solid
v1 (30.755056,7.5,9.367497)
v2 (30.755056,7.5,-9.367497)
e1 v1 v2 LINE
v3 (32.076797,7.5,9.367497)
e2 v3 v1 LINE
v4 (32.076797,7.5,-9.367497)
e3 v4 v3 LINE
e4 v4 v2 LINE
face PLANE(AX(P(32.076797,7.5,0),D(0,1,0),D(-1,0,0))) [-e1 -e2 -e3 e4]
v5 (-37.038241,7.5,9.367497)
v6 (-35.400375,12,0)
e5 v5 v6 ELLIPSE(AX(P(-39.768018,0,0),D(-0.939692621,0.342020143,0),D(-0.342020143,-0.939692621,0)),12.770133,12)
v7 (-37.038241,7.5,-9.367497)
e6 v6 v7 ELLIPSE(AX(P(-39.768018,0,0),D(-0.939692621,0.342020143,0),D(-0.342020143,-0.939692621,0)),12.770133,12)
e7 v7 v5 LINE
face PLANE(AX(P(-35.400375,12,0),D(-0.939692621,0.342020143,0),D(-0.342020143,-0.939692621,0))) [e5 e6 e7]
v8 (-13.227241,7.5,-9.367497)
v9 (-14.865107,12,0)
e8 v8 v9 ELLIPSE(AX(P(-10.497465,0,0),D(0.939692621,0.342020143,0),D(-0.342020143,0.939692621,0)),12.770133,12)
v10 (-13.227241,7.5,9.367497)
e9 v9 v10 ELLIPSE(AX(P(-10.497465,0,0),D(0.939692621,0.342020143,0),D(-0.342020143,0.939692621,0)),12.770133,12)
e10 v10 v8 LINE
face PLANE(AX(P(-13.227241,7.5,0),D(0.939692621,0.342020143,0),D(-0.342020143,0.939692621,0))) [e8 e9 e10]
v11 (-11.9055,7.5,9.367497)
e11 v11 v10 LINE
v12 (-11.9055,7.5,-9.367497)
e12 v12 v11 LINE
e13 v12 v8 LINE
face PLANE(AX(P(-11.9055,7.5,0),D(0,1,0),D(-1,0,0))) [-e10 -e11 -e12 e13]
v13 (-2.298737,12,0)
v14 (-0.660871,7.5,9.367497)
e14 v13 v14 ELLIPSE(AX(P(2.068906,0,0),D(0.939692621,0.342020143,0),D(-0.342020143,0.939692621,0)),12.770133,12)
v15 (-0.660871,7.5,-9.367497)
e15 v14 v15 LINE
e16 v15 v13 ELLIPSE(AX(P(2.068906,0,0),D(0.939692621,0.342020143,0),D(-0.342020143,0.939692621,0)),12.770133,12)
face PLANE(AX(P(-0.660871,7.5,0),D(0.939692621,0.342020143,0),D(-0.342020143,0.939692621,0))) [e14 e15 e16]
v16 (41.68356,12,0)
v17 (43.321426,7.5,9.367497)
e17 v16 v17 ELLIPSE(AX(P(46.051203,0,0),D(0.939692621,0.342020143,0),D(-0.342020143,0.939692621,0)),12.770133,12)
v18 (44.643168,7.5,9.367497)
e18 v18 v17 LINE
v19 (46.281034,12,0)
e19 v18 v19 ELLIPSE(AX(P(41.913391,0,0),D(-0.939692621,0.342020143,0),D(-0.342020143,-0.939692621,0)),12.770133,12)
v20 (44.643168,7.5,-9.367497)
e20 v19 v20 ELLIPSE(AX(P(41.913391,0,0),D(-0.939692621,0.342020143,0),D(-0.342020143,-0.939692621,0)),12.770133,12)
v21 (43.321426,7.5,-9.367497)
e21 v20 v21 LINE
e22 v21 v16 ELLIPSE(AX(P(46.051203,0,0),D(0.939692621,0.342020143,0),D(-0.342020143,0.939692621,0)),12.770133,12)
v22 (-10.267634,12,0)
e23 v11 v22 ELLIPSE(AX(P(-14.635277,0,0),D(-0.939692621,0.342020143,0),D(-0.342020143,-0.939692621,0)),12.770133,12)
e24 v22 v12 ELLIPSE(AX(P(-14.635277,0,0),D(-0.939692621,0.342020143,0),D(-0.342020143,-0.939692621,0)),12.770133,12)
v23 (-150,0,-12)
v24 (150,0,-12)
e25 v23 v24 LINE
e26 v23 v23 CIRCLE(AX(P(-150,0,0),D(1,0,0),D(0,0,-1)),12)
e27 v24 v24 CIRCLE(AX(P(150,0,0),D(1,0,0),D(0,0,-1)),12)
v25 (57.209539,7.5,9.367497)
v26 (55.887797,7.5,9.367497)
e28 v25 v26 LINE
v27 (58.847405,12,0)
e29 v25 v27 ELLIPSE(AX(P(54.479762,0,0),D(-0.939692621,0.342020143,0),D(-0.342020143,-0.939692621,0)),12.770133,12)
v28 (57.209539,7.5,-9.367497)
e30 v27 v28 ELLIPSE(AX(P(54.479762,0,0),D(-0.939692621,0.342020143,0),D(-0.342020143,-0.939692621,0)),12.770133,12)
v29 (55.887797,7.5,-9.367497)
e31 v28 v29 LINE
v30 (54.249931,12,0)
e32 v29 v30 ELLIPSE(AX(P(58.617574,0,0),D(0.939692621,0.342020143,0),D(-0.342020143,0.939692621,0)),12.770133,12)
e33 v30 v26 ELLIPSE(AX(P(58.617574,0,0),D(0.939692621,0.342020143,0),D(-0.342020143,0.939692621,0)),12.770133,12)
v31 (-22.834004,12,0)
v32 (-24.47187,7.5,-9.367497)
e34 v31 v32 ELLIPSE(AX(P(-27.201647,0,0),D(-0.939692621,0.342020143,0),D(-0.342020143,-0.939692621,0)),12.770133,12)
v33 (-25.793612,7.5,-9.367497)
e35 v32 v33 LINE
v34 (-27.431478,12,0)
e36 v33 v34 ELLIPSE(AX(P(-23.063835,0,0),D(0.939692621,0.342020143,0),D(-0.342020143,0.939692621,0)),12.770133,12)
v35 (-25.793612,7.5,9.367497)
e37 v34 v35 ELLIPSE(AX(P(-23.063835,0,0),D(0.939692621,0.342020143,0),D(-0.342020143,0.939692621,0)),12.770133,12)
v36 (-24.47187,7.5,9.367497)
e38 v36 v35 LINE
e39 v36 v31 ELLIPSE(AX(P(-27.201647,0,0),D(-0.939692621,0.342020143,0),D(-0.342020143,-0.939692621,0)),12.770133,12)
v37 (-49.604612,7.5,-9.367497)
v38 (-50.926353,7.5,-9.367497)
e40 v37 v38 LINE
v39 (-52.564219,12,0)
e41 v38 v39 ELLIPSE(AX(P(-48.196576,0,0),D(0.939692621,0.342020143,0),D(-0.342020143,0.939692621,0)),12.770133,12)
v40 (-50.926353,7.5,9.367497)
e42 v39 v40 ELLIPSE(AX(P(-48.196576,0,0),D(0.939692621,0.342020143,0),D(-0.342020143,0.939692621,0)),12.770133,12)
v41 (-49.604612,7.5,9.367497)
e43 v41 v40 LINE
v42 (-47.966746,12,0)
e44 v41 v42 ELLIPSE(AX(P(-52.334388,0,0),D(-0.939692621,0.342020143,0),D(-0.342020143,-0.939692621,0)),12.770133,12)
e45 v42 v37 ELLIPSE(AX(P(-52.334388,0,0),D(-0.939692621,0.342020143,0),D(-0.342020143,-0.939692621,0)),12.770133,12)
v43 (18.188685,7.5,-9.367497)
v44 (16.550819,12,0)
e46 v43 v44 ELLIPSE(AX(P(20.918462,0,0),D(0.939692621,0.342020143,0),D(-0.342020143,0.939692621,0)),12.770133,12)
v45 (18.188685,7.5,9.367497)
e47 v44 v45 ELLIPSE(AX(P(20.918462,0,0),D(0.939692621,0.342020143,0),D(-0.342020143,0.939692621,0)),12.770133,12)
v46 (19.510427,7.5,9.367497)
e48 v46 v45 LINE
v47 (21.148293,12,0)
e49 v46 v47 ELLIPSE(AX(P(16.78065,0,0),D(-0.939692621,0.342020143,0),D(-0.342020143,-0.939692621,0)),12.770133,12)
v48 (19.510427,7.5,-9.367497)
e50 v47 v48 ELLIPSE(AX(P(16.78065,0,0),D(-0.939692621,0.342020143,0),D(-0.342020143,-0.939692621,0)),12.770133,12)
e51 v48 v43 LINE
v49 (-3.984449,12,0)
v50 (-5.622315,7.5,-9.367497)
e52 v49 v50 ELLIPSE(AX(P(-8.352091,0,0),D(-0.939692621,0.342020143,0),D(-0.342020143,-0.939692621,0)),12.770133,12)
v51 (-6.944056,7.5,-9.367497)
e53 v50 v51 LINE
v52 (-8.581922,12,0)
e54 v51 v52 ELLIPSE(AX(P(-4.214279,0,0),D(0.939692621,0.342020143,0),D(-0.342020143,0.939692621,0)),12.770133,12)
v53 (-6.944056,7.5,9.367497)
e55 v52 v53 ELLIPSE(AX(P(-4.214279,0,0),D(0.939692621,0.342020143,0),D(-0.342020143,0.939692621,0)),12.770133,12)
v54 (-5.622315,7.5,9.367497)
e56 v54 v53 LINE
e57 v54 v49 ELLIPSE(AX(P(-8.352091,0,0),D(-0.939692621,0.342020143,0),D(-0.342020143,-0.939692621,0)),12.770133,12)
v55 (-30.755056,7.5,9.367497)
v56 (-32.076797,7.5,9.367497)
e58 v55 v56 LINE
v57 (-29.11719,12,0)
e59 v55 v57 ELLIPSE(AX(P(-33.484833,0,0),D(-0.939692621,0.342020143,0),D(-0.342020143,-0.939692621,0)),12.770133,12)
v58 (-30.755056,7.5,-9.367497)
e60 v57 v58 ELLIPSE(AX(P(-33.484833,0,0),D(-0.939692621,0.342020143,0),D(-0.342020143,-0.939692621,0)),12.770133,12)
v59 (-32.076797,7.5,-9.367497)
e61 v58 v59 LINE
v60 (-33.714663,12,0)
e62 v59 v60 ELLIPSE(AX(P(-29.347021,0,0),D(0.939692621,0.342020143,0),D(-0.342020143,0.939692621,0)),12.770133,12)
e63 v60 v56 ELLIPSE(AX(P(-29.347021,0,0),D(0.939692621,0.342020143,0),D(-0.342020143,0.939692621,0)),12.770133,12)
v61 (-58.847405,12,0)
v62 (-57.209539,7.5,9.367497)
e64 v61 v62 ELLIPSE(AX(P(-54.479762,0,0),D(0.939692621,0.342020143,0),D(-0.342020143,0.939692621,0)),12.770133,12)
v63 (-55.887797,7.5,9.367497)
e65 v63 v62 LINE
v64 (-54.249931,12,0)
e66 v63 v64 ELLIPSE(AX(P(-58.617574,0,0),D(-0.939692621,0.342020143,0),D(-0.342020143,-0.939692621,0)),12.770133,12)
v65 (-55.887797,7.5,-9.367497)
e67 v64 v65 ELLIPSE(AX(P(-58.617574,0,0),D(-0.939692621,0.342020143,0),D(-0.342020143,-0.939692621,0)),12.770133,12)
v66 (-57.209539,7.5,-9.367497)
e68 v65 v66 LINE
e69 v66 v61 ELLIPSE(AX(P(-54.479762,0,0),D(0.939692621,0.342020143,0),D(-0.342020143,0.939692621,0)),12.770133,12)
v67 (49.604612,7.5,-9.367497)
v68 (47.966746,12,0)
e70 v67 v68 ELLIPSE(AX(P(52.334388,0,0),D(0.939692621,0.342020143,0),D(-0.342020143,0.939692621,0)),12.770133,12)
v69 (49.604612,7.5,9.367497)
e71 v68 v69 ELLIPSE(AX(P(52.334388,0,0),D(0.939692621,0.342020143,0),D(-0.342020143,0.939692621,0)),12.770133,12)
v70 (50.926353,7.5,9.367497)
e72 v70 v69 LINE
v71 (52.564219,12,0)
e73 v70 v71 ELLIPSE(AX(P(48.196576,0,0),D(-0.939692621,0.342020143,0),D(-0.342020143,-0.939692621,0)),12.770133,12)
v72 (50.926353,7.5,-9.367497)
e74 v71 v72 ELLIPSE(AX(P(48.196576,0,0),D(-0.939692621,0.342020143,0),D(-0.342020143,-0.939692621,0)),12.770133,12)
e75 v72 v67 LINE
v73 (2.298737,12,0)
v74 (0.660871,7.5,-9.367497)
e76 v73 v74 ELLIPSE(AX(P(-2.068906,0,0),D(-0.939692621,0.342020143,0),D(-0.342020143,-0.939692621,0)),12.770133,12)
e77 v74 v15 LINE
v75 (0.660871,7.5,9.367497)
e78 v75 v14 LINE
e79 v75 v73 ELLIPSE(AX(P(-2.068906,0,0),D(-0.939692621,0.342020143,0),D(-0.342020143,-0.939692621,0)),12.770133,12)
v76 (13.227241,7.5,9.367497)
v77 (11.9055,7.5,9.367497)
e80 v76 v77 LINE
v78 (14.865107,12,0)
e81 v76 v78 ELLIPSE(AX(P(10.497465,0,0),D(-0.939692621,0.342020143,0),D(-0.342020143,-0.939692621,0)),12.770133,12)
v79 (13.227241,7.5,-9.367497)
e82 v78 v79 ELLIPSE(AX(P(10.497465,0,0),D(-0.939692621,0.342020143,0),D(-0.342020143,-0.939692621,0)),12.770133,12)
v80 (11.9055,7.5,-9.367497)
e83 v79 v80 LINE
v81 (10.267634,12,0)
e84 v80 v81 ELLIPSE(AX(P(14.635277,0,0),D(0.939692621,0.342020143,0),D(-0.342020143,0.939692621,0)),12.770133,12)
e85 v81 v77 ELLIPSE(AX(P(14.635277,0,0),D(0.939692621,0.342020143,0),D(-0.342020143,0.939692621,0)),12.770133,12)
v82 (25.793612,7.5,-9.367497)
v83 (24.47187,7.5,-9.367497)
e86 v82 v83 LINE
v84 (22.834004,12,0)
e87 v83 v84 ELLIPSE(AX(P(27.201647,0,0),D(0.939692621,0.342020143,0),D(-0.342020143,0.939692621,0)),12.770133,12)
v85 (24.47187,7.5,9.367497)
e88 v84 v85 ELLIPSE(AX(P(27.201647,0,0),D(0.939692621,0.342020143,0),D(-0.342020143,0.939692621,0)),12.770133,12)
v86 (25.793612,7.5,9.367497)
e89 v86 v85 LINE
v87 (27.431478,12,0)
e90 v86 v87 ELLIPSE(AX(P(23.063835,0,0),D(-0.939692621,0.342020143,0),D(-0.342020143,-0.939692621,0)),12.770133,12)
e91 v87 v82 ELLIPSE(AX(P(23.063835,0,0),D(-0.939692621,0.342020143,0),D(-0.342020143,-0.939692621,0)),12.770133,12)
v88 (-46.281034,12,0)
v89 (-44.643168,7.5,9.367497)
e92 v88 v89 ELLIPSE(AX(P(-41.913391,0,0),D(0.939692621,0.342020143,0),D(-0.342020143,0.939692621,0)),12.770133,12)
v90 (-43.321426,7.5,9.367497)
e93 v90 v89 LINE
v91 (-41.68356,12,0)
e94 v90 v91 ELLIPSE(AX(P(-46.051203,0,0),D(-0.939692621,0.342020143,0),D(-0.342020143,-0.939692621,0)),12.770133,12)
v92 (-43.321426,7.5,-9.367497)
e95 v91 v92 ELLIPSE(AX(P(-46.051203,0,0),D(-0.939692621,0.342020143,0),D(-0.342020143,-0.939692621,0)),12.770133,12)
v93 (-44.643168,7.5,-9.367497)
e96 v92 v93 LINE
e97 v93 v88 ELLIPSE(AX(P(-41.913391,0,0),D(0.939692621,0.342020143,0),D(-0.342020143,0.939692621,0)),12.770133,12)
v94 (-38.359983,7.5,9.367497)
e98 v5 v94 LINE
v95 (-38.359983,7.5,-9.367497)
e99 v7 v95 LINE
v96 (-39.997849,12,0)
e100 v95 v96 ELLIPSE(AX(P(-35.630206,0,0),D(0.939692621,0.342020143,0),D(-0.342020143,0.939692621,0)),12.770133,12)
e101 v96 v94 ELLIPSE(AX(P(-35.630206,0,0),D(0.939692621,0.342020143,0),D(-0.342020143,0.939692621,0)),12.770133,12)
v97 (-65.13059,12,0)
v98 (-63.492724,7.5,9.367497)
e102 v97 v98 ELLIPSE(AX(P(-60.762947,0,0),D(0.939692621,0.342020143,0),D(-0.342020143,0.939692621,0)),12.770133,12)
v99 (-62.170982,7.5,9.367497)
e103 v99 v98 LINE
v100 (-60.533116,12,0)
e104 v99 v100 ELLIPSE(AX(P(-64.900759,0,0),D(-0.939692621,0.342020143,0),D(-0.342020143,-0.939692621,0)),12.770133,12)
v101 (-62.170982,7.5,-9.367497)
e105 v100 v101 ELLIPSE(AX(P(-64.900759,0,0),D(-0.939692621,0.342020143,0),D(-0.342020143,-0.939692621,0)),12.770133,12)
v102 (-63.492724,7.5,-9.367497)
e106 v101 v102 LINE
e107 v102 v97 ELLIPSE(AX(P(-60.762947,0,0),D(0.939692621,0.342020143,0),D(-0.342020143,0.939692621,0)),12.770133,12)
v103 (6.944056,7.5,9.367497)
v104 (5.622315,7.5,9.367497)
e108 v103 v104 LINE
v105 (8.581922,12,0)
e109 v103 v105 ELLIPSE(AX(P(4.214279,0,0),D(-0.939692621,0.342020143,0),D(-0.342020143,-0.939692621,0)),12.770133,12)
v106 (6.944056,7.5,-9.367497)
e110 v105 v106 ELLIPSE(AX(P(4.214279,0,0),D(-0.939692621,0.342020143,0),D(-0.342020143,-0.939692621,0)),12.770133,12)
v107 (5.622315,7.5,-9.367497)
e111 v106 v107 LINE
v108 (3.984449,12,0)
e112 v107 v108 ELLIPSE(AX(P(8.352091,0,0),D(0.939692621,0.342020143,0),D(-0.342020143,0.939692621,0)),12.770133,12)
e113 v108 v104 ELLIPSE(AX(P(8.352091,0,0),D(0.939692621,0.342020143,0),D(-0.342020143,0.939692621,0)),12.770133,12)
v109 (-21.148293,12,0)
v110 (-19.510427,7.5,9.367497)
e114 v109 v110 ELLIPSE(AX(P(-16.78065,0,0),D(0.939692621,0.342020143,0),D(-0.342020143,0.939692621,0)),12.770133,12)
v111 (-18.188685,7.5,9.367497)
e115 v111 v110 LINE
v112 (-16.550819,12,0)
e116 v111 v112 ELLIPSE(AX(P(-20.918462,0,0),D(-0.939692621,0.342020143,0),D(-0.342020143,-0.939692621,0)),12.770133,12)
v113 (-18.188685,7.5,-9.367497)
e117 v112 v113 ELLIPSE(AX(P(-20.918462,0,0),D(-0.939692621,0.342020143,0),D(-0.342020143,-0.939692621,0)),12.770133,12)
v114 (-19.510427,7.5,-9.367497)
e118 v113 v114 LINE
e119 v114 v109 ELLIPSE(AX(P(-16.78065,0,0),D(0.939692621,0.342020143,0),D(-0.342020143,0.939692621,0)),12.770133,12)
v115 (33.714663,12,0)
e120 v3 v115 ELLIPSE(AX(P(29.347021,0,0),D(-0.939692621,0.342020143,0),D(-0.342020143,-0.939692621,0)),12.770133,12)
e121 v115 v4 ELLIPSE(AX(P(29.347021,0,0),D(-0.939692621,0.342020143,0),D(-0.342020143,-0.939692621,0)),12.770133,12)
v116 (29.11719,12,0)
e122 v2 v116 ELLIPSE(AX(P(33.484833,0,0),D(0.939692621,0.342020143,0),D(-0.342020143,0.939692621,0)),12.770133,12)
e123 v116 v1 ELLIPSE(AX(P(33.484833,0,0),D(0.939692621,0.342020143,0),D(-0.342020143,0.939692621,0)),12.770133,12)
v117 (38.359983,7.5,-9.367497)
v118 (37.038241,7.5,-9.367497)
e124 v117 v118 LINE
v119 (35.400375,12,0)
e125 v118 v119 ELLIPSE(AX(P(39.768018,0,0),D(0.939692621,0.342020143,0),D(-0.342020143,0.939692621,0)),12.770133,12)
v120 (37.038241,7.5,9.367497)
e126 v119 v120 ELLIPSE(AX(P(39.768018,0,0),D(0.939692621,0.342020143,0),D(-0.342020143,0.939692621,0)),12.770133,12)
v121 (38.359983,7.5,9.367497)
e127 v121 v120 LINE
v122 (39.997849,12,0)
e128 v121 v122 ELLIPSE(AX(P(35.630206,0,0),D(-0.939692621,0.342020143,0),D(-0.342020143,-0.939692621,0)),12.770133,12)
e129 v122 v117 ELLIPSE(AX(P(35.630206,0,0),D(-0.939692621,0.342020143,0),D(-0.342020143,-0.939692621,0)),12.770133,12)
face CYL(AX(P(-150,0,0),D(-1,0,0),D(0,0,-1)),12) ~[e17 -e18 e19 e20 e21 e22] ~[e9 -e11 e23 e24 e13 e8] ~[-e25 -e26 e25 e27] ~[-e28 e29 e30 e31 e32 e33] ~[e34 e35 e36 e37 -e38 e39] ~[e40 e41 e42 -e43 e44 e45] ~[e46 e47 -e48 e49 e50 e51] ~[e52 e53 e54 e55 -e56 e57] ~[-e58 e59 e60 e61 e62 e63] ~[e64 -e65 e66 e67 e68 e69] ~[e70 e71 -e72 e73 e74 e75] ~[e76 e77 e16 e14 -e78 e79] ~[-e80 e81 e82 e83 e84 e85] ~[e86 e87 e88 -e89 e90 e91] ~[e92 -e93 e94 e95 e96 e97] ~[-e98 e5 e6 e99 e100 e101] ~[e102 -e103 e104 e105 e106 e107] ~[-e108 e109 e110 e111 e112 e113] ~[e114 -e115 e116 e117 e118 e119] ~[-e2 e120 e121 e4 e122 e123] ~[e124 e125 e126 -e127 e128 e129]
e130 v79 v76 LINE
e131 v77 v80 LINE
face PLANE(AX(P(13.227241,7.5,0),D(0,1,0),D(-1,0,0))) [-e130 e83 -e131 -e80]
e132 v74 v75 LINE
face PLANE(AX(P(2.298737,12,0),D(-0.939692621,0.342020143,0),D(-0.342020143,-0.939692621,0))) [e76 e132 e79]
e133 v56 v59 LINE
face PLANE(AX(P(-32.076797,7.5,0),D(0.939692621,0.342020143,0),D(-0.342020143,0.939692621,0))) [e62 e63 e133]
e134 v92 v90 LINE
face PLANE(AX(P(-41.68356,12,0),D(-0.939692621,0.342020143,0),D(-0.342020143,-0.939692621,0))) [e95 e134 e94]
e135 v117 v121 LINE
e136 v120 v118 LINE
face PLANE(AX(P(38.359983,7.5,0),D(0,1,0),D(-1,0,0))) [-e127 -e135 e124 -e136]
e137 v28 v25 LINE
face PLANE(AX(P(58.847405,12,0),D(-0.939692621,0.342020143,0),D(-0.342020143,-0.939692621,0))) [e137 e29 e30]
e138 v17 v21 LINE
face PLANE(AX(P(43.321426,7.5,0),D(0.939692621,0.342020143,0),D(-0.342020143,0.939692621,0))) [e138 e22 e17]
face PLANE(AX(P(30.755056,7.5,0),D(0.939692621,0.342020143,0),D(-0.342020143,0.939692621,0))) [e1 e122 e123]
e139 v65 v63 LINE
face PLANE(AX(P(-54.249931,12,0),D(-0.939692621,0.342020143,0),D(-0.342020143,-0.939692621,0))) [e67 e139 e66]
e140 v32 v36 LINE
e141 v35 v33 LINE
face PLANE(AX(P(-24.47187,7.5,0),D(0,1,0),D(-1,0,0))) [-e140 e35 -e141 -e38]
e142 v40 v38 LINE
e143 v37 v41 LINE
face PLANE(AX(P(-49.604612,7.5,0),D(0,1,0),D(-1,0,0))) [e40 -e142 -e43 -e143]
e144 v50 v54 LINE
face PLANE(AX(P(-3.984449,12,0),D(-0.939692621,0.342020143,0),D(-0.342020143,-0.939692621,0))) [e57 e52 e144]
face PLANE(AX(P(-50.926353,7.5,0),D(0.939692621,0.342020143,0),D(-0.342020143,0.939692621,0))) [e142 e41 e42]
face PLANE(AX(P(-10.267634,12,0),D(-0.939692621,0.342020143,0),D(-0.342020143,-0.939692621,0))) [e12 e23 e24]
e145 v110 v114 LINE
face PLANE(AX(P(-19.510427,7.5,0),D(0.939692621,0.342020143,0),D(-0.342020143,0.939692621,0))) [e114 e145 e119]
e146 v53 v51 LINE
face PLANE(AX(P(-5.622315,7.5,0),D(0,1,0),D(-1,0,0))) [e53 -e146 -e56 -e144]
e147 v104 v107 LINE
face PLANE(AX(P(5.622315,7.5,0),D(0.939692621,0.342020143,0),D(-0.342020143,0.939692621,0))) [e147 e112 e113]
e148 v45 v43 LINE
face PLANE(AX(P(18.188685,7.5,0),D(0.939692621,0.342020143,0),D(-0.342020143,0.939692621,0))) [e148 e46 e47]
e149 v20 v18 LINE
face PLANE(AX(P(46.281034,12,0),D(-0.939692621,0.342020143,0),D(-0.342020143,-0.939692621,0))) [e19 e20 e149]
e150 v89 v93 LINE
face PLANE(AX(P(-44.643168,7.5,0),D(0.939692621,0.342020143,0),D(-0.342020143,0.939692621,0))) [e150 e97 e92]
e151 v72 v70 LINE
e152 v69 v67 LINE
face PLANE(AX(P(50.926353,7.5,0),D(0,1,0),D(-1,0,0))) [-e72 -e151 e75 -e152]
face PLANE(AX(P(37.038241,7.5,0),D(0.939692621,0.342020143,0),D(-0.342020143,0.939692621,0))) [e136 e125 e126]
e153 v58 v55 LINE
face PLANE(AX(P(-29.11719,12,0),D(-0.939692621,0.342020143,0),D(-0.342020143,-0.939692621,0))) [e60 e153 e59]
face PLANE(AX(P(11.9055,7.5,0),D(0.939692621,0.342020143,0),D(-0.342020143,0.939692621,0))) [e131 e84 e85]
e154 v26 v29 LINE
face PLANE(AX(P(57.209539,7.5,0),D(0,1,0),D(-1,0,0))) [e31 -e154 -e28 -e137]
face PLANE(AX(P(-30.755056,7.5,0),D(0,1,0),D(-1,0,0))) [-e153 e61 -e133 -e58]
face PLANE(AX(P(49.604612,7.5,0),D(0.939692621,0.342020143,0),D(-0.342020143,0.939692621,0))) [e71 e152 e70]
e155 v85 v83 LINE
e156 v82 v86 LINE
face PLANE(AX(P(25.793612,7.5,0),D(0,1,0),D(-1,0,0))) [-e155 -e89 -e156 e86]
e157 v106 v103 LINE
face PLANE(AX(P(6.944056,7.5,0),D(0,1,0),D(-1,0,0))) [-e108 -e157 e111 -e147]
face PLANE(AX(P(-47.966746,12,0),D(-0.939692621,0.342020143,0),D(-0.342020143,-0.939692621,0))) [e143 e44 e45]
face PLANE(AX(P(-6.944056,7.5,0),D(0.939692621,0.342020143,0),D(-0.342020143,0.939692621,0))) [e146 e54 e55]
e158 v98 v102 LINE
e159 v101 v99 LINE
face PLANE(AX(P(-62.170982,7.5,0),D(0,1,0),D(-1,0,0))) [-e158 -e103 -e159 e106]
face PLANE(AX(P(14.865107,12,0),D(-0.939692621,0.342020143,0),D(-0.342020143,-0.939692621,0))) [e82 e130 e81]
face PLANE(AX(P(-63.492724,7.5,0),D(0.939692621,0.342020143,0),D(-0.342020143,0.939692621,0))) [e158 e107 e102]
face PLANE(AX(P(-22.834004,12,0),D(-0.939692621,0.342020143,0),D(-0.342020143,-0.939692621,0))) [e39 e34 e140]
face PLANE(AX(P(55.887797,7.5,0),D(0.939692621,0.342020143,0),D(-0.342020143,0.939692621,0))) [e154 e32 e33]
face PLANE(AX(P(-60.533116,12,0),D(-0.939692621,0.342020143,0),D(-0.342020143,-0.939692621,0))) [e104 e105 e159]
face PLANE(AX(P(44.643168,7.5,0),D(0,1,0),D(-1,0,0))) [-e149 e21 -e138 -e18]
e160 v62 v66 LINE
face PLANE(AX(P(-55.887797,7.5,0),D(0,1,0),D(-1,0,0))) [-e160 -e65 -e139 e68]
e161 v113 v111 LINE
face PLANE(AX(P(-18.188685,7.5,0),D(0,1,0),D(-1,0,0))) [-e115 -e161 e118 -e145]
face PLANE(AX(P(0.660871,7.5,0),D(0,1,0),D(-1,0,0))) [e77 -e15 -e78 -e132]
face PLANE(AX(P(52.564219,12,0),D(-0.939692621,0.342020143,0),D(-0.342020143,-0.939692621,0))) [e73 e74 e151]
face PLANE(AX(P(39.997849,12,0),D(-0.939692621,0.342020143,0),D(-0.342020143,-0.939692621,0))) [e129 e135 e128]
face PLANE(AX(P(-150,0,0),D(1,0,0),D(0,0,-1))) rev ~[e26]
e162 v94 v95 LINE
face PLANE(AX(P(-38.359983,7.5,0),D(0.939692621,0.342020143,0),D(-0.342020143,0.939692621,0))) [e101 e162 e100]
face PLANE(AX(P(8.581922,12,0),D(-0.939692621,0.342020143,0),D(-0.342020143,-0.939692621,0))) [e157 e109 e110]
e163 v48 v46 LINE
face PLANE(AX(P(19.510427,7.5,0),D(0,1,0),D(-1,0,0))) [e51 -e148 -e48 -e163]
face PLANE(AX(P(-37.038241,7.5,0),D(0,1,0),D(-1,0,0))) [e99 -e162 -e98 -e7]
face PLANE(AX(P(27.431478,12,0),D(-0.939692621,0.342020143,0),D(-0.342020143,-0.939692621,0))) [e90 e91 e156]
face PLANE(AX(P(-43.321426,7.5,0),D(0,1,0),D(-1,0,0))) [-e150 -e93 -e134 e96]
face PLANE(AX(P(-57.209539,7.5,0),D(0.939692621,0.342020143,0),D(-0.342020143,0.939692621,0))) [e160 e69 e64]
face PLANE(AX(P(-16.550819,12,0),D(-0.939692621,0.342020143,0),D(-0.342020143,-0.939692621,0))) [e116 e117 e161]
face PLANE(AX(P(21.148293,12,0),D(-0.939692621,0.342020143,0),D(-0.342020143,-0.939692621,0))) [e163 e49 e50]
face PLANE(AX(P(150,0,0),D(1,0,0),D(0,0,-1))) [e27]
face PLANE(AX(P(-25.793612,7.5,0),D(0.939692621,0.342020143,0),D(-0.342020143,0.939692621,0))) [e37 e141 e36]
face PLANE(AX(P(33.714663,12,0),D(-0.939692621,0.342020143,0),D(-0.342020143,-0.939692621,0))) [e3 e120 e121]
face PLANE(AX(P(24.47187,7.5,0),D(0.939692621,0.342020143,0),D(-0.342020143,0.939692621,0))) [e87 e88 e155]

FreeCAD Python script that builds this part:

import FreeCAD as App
import Part
import Sketcher

V = App.Vector
Q = App.Units.Quantity


def add_polygon(sketch, points):
    """Adds a closed chain of lines whose ends are joined by coincident constraints."""
    first, n = sketch.GeometryCount, len(points)
    for a, b in zip(points, points[1:] + points[:1]):
        sketch.addGeometry(Part.LineSegment(App.Vector(*a, 0), App.Vector(*b, 0)), False)
    for i in range(n):
        sketch.addConstraint(Sketcher.Constraint("Coincident", first + i, 2, first + (i + 1) % n, 1))

doc = App.newDocument("Part")
body = doc.addObject("PartDesign::Body", "Body")

# Sketch on YZ plane
sketch1 = body.newObject("Sketcher::SketchObject", "Sketch")
sketch1.AttachmentSupport = (doc.getObject("YZ_Plane"), [""])
sketch1.MapMode = "FlatFace"
sketch1.addGeometry(Part.Circle(V(0, 0, 0), V(0, 0, 1), 12), False)
sketch1.addConstraint([
    Sketcher.Constraint("Coincident", 0, 3, -1, 1),
    Sketcher.Constraint("Diameter", 0, 24.0),
])
pad1 = body.newObject("PartDesign::Pad", "Pad")
pad1.Profile = sketch1
pad1.Type = "TwoLengths"
pad1.Length = 150
pad1.Length2 = 150

# Sketch on XY plane
sketch2 = body.newObject("Sketcher::SketchObject", "Sketch001")
sketch2.AttachmentSupport = (doc.getObject("XY_Plane"), [""])
sketch2.MapMode = "FlatFace"
add_polygon(sketch2, [(-63.492724, 7.5), (-62.170982, 7.5), (-60.533116, 12), (-65.13059, 12)])  # lines 0-3
sketch2.addConstraint([
    Sketcher.Constraint("Horizontal", 0),
    Sketcher.Constraint("Horizontal", 2),
    Sketcher.Constraint("Equal", 1, 3),
    Sketcher.Constraint("Angle", 1, Q("70 deg")),
    Sketcher.Constraint("DistanceY", -1, 1, 1, 2, 12.0),
    Sketcher.Constraint("DistanceY", -1, 1, 0, 2, 7.5),
    Sketcher.Constraint("DistanceX", 0, 1, 0, 2, 1.321741),
    Sketcher.Constraint("DistanceX", 2, 2, -1, 1, 65.13059),
])
pocket1 = body.newObject("PartDesign::Pocket", "Pocket")
pocket1.Profile = sketch2
pocket1.Length = 303.913895
pocket1.Midplane = True
doc.recompute()

linearpattern = body.newObject("PartDesign::LinearPattern", "LinearPattern")
linearpattern.Originals = [pocket1]
linearpattern.Direction = (doc.getObject("X_Axis"), [""])
linearpattern.Mode = "offset"
linearpattern.Offset = 6.283185
linearpattern.Occurrences = 20
body.Tip = linearpattern

doc.recompute()
